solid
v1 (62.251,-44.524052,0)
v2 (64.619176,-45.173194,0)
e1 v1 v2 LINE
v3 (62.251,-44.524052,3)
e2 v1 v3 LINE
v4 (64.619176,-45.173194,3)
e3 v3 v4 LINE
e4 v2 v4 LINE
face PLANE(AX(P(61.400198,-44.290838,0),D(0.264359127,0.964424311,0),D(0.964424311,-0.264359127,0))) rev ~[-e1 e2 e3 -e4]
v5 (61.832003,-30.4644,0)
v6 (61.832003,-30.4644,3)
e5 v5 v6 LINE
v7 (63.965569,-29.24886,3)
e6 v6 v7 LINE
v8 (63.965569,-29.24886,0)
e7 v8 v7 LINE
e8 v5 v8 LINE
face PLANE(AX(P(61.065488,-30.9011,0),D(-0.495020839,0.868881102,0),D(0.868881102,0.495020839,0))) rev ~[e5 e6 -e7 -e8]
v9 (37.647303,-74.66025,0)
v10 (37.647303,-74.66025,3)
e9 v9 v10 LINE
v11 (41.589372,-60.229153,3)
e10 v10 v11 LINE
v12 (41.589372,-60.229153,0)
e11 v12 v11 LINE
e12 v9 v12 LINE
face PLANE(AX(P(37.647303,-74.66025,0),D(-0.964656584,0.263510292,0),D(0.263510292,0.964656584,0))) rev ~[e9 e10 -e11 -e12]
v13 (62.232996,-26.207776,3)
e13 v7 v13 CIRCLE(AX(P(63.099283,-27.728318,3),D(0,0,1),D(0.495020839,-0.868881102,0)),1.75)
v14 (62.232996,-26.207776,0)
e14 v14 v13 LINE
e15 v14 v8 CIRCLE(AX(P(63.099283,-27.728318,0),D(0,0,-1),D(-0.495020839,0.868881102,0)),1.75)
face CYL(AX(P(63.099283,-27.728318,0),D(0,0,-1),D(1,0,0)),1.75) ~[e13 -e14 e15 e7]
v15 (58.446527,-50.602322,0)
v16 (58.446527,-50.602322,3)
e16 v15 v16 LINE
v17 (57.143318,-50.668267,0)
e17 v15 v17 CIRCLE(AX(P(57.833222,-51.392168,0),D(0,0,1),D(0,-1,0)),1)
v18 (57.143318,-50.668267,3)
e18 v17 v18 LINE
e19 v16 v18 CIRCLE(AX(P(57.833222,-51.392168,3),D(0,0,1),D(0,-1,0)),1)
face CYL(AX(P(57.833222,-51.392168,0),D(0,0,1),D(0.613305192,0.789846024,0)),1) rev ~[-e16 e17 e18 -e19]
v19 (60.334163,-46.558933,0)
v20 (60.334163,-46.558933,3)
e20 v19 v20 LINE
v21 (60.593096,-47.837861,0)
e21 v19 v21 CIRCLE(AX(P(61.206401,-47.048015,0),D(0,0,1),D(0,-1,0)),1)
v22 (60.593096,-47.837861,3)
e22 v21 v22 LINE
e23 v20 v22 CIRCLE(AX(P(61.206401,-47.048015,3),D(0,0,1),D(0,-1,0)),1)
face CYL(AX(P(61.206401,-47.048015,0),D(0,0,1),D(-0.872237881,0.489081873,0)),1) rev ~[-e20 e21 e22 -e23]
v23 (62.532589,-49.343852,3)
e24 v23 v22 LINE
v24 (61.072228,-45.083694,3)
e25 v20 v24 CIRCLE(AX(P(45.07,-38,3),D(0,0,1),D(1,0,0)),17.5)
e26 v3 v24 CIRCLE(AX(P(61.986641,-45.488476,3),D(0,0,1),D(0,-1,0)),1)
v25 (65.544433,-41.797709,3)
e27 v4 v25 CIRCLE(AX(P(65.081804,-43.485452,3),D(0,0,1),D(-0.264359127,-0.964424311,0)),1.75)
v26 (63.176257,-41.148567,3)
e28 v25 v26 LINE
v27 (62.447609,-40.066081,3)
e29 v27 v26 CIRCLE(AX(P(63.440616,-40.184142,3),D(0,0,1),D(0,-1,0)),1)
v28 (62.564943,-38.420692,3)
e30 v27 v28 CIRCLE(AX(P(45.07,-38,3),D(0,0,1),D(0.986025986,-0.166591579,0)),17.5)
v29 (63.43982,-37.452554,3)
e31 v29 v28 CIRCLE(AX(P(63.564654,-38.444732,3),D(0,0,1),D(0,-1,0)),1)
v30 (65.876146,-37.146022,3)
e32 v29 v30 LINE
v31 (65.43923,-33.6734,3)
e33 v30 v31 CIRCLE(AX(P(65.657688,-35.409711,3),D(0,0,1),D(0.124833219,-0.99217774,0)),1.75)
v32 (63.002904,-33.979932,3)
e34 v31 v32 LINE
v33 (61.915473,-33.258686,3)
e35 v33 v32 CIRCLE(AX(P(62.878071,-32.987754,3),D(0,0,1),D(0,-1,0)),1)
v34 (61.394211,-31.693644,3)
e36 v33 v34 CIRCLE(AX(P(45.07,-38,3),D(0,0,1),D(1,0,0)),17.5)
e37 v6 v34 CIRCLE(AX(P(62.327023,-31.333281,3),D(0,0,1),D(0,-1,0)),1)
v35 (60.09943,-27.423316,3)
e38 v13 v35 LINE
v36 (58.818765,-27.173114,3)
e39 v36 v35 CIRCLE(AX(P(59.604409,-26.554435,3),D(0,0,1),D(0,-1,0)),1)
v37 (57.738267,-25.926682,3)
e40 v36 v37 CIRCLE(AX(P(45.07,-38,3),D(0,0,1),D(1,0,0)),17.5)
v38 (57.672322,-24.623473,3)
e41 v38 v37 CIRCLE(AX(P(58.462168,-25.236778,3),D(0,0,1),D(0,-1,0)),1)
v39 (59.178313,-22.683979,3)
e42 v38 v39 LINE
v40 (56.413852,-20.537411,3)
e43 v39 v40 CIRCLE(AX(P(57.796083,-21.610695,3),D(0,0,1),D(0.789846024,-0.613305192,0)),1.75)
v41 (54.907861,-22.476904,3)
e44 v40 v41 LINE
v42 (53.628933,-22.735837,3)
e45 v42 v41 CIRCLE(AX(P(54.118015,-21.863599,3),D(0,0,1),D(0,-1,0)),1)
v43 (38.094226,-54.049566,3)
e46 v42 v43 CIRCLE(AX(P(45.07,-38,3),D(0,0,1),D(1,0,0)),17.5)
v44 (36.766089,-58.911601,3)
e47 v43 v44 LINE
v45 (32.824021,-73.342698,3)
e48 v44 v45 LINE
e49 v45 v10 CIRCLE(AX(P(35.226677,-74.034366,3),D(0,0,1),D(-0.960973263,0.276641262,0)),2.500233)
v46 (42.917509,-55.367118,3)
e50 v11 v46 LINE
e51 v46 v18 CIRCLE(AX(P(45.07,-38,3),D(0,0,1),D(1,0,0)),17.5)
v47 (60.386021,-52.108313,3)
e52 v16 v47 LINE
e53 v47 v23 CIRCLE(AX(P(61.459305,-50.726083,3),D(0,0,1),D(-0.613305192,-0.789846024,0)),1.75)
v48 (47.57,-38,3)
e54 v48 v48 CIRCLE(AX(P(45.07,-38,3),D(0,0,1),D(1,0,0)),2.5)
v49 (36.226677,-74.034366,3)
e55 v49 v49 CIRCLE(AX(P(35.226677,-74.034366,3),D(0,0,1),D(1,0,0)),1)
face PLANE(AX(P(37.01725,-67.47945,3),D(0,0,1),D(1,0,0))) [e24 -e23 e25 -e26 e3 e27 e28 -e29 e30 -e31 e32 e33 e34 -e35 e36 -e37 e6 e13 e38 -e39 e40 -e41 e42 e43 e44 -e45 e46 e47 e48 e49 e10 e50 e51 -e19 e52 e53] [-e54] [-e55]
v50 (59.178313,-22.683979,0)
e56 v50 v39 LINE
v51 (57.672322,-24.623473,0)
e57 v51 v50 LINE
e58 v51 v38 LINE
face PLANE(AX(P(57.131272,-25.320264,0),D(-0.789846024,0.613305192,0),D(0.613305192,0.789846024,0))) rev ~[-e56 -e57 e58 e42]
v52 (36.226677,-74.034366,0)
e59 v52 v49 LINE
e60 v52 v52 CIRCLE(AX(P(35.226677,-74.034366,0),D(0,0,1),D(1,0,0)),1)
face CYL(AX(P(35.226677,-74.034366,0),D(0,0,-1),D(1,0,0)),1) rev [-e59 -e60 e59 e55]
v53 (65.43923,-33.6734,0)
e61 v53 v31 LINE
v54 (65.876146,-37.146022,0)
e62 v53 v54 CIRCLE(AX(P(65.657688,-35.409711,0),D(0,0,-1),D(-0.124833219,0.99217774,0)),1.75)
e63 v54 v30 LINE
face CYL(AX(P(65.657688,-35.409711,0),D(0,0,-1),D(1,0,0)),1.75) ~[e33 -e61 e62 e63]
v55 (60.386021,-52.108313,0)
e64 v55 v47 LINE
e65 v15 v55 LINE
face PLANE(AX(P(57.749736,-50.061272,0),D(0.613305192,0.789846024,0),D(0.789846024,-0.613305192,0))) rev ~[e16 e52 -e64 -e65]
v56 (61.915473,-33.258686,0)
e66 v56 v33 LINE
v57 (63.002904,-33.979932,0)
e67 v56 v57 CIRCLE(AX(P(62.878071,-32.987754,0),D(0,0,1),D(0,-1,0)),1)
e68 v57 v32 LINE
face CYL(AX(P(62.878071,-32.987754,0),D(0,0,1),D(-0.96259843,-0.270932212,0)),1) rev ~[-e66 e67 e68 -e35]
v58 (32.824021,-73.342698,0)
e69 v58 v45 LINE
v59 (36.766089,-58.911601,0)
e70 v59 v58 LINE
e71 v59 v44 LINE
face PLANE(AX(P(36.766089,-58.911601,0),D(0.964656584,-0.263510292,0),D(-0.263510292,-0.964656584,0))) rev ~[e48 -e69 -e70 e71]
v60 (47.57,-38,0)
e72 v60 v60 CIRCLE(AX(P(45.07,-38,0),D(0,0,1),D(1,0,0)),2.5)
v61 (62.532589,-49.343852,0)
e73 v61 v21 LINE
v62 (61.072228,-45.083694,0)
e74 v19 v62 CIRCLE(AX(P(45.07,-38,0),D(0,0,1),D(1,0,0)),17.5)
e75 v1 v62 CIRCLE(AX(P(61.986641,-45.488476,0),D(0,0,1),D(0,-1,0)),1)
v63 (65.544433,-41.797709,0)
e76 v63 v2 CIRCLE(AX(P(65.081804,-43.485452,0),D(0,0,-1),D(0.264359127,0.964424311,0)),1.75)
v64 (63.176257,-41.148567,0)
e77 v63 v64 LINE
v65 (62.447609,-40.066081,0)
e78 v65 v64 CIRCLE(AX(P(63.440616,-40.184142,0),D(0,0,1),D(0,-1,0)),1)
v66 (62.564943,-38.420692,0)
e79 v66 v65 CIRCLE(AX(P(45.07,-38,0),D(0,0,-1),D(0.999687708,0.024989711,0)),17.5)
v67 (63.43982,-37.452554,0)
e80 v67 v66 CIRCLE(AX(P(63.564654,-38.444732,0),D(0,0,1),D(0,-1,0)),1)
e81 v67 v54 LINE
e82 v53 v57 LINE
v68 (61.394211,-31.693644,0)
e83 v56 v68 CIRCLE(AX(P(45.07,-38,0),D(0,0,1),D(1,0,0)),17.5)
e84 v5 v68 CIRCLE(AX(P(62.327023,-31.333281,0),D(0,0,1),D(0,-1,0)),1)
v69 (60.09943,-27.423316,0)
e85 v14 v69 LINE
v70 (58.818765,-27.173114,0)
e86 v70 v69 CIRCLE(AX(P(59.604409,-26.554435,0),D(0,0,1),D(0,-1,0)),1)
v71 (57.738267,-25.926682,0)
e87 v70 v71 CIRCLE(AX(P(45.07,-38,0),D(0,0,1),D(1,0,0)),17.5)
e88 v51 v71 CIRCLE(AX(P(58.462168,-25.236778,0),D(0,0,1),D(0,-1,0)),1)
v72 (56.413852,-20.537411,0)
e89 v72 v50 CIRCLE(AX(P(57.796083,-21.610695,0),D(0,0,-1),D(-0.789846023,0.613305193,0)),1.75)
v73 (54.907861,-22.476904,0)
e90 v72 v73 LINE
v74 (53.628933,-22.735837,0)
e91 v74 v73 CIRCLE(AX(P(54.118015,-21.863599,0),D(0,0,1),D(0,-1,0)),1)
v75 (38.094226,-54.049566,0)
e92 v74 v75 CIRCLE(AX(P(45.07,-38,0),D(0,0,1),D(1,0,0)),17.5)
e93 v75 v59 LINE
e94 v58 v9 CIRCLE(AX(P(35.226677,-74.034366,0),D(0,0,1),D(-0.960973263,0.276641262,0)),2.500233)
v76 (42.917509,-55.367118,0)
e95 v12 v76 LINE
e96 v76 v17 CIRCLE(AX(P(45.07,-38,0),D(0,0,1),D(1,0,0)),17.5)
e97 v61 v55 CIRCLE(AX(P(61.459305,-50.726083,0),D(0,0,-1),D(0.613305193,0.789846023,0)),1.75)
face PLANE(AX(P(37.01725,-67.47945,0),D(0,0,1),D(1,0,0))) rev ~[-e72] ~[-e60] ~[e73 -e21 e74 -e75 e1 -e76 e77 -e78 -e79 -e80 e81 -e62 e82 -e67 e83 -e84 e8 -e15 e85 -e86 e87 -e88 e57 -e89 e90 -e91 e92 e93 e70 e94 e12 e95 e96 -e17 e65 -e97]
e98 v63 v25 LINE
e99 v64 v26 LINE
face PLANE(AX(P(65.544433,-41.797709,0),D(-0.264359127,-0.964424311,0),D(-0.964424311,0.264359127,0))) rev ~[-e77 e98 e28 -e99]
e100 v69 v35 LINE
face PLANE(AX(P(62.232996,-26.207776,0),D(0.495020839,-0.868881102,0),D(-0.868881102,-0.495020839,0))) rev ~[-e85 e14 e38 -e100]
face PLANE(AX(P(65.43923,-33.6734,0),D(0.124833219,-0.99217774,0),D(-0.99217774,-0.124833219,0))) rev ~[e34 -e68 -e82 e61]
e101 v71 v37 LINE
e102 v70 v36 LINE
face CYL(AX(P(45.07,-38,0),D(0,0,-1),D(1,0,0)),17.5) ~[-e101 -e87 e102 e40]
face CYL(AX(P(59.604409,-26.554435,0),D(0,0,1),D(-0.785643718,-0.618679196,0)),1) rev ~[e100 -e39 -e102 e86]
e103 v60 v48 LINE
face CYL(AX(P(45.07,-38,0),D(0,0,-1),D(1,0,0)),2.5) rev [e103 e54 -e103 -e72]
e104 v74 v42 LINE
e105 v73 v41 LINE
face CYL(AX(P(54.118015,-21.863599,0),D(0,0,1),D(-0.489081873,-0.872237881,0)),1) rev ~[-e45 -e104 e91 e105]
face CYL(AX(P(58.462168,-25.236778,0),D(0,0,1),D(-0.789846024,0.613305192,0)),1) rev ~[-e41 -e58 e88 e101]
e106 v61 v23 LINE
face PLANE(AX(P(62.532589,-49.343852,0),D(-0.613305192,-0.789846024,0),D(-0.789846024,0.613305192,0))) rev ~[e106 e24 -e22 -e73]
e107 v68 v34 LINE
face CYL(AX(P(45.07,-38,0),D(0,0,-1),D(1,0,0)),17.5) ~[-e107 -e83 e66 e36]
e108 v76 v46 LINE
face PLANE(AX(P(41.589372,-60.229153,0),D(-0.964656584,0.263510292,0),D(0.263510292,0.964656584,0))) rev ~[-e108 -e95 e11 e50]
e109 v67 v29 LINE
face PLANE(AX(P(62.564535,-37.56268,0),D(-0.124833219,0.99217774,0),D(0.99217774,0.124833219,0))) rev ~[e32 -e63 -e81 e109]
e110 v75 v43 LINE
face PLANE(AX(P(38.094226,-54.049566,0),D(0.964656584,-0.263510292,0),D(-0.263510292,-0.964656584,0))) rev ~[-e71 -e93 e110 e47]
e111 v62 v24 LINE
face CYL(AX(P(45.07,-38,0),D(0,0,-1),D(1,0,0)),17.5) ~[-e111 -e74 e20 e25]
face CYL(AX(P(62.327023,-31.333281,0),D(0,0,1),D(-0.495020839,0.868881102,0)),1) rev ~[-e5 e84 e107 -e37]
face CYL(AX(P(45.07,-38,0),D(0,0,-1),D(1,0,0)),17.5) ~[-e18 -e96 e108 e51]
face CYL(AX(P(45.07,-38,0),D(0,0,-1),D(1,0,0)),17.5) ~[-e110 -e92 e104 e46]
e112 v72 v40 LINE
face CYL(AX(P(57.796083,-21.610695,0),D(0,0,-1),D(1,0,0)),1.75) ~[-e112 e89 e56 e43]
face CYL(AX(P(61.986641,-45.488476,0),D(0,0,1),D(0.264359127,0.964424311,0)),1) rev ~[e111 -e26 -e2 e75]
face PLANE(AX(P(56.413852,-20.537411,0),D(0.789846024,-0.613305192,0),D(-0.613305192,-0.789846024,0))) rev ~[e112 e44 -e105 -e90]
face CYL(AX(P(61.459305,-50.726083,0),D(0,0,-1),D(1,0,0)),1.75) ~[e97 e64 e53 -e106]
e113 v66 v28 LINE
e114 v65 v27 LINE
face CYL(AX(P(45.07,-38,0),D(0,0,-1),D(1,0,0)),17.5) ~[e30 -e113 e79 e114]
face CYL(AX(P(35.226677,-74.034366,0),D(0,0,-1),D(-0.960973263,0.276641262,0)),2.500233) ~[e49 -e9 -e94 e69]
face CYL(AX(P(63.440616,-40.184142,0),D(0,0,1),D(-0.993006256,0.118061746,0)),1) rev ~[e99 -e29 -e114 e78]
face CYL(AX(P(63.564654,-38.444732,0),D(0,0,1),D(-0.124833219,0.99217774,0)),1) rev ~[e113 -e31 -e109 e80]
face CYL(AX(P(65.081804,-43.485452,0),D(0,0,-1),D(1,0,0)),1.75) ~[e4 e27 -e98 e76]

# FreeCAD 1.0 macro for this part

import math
import FreeCAD as App
import Part
import Sketcher
Q = App.Units.Quantity


def edges_at(feature, points):
    """Names of the edges that pass closest to the given points."""
    edges = feature.Shape.Edges
    near = lambda p: min(range(len(edges)), key=lambda i: edges[i].distToShape(Part.Vertex(*p))[0])
    return sorted({f"Edge{near(p) + 1}" for p in points})

doc = App.newDocument("Part")
body = doc.addObject("PartDesign::Body", "Body")

sketch1 = doc.addObject("Sketcher::SketchObject", "Sketch")
body.addObject(sketch1)
sketch1.AttachmentSupport = (doc.XY_Plane, [""])
sketch1.MapMode = "FlatFace"
sketch1.addGeometry(Part.LineSegment(App.Vector(62.564535, -37.56268, 0), App.Vector(65.876146, -37.146022, 0)), False)
sketch1.addGeometry(Part.ArcOfCircle(Part.Circle(App.Vector(65.657688, -35.409711, 0), App.Vector(0, 0, 1), 1.75), math.radians(-82.828875), math.radians(97.171124)), False)
sketch1.addGeometry(Part.LineSegment(App.Vector(65.43923, -33.6734, 0), App.Vector(62.127619, -34.090058, 0)), False)
sketch1.addGeometry(Part.ArcOfCircle(Part.Circle(App.Vector(45.07, -38, 0), App.Vector(0, 0, 1), 17.5), math.radians(12.910295), math.radians(23.931954)), False)
sketch1.addGeometry(Part.LineSegment(App.Vector(61.065488, -30.9011, 0), App.Vector(63.965569, -29.24886, 0)), False)
sketch1.addGeometry(Part.ArcOfCircle(Part.Circle(App.Vector(63.099283, -27.728318, 0), App.Vector(0, 0, 1), 1.75), math.radians(-60.328876), math.radians(119.671125)), False)
sketch1.addGeometry(Part.LineSegment(App.Vector(62.232996, -26.207776, 0), App.Vector(59.332915, -27.860017, 0)), False)
sketch1.addGeometry(Part.ArcOfCircle(Part.Circle(App.Vector(45.07, -38, 0), App.Vector(0, 0, 1), 17.5), math.radians(35.410295), math.radians(46.431954)), False)
sketch1.addGeometry(Part.LineSegment(App.Vector(57.131272, -25.320264, 0), App.Vector(59.178313, -22.683979, 0)), False)
sketch1.addGeometry(Part.ArcOfCircle(Part.Circle(App.Vector(57.796083, -21.610695, 0), App.Vector(0, 0, 1), 1.75), math.radians(-37.828875), math.radians(142.171124)), False)
sketch1.addGeometry(Part.LineSegment(App.Vector(56.413852, -20.537411, 0), App.Vector(54.366811, -23.173696, 0)), False)
sketch1.addGeometry(Part.ArcOfCircle(Part.Circle(App.Vector(45.07, -38, 0), App.Vector(0, 0, 1), 17.5), math.radians(57.910295), math.radians(246.508336)), False)
sketch1.addGeometry(Part.LineSegment(App.Vector(38.094226, -54.049566, 0), App.Vector(36.766089, -58.911601, 0)), False)
sketch1.addGeometry(Part.LineSegment(App.Vector(36.766089, -58.911601, 0), App.Vector(32.824021, -73.342698, 0)), False)
sketch1.addGeometry(Part.ArcOfCircle(Part.Circle(App.Vector(35.226677, -74.034366, 0), App.Vector(0, 0, 1), 2.500233), math.radians(163.940153), math.radians(345.502941)), False)
sketch1.addGeometry(Part.LineSegment(App.Vector(37.647303, -74.66025, 0), App.Vector(41.589372, -60.229153, 0)), False)
sketch1.addGeometry(Part.LineSegment(App.Vector(41.589372, -60.229153, 0), App.Vector(42.917509, -55.367118, 0)), False)
sketch1.addGeometry(Part.ArcOfCircle(Part.Circle(App.Vector(45.07, -38, 0), App.Vector(0, 0, 1), 17.5), math.radians(-97.065242), math.radians(-43.568046)), False)
sketch1.addGeometry(Part.LineSegment(App.Vector(57.749736, -50.061272, 0), App.Vector(60.386021, -52.108313, 0)), False)
sketch1.addGeometry(Part.ArcOfCircle(Part.Circle(App.Vector(61.459305, -50.726083, 0), App.Vector(0, 0, 1), 1.75), math.radians(-127.828875), math.radians(52.171124)), False)
sketch1.addGeometry(Part.LineSegment(App.Vector(62.532589, -49.343852, 0), App.Vector(59.896304, -47.296811, 0)), False)
sketch1.addGeometry(Part.ArcOfCircle(Part.Circle(App.Vector(45.07, -38, 0), App.Vector(0, 0, 1), 17.5), math.radians(-32.089705), math.radians(-21.068046)), False)
sketch1.addGeometry(Part.LineSegment(App.Vector(61.400198, -44.290838, 0), App.Vector(64.619176, -45.173194, 0)), False)
sketch1.addGeometry(Part.ArcOfCircle(Part.Circle(App.Vector(65.081804, -43.485452, 0), App.Vector(0, 0, 1), 1.75), math.radians(-105.328875), math.radians(74.671125)), False)
sketch1.addGeometry(Part.LineSegment(App.Vector(65.544433, -41.797709, 0), App.Vector(62.325455, -40.915353, 0)), False)
sketch1.addGeometry(Part.ArcOfCircle(Part.Circle(App.Vector(45.07, -38, 0), App.Vector(0, 0, 1), 17.5), math.radians(-9.589705), math.radians(1.431954)), False)
sketch1.addGeometry(Part.Circle(App.Vector(45.07, -38, 0), App.Vector(0, 0, 1), 2.5), False)
sketch1.addGeometry(Part.Circle(App.Vector(35.226677, -74.034366, 0), App.Vector(0, 0, 1), 1), False)
sketch1.addConstraint(Sketcher.Constraint("Tangent", 0, 2, 1, 1))
sketch1.addConstraint(Sketcher.Constraint("Tangent", 1, 2, 2, 1))
sketch1.addConstraint(Sketcher.Constraint("Coincident", 2, 2, 3, 1))
sketch1.addConstraint(Sketcher.Constraint("Coincident", 3, 2, 4, 1))
sketch1.addConstraint(Sketcher.Constraint("Tangent", 4, 2, 5, 1))
sketch1.addConstraint(Sketcher.Constraint("Tangent", 5, 2, 6, 1))
sketch1.addConstraint(Sketcher.Constraint("Coincident", 6, 2, 7, 1))
sketch1.addConstraint(Sketcher.Constraint("Coincident", 7, 2, 8, 1))
sketch1.addConstraint(Sketcher.Constraint("Tangent", 8, 2, 9, 1))
sketch1.addConstraint(Sketcher.Constraint("Tangent", 9, 2, 10, 1))
sketch1.addConstraint(Sketcher.Constraint("Coincident", 10, 2, 11, 1))
sketch1.addConstraint(Sketcher.Constraint("Coincident", 11, 2, 12, 1))
sketch1.addConstraint(Sketcher.Constraint("Coincident", 12, 2, 13, 1))
sketch1.addConstraint(Sketcher.Constraint("Coincident", 13, 2, 14, 1))
sketch1.addConstraint(Sketcher.Constraint("Coincident", 14, 2, 15, 1))
sketch1.addConstraint(Sketcher.Constraint("Coincident", 15, 2, 16, 1))
sketch1.addConstraint(Sketcher.Constraint("Coincident", 16, 2, 17, 1))
sketch1.addConstraint(Sketcher.Constraint("Coincident", 17, 2, 18, 1))
sketch1.addConstraint(Sketcher.Constraint("Tangent", 18, 2, 19, 1))
sketch1.addConstraint(Sketcher.Constraint("Tangent", 19, 2, 20, 1))
sketch1.addConstraint(Sketcher.Constraint("Coincident", 20, 2, 21, 1))
sketch1.addConstraint(Sketcher.Constraint("Coincident", 21, 2, 22, 1))
sketch1.addConstraint(Sketcher.Constraint("Tangent", 22, 2, 23, 1))
sketch1.addConstraint(Sketcher.Constraint("Tangent", 23, 2, 24, 1))
sketch1.addConstraint(Sketcher.Constraint("Coincident", 24, 2, 25, 1))
sketch1.addConstraint(Sketcher.Constraint("Coincident", 25, 2, 0, 1))
sketch1.addConstraint(Sketcher.Constraint("Coincident", 7, 3, 3, 3))
sketch1.addConstraint(Sketcher.Constraint("Coincident", 11, 3, 3, 3))
sketch1.addConstraint(Sketcher.Constraint("Coincident", 17, 3, 3, 3))
sketch1.addConstraint(Sketcher.Constraint("Coincident", 21, 3, 3, 3))
sketch1.addConstraint(Sketcher.Constraint("Coincident", 25, 3, 3, 3))
sketch1.addConstraint(Sketcher.Constraint("Coincident", 26, 3, 3, 3))
sketch1.addConstraint(Sketcher.Constraint("Coincident", 27, 3, 14, 3))
sketch1.addConstraint(Sketcher.Constraint("Equal", 1, 5))
sketch1.addConstraint(Sketcher.Constraint("Equal", 3, 7))
sketch1.addConstraint(Sketcher.Constraint("Equal", 5, 9))
sketch1.addConstraint(Sketcher.Constraint("Equal", 7, 11))
sketch1.addConstraint(Sketcher.Constraint("Equal", 11, 17))
sketch1.addConstraint(Sketcher.Constraint("Equal", 9, 19))
sketch1.addConstraint(Sketcher.Constraint("Equal", 17, 21))
sketch1.addConstraint(Sketcher.Constraint("Equal", 19, 23))
sketch1.addConstraint(Sketcher.Constraint("Equal", 21, 25))
sketch1.addConstraint(Sketcher.Constraint("Parallel", 0, 2))
sketch1.addConstraint(Sketcher.Constraint("Parallel", 4, 6))
sketch1.addConstraint(Sketcher.Constraint("Parallel", 8, 10))
sketch1.addConstraint(Sketcher.Constraint("Parallel", 12, 13))
sketch1.addConstraint(Sketcher.Constraint("Parallel", 13, 15))
sketch1.addConstraint(Sketcher.Constraint("Parallel", 15, 16))
sketch1.addConstraint(Sketcher.Constraint("Perpendicular", 10, 18))
sketch1.addConstraint(Sketcher.Constraint("Parallel", 18, 20))
sketch1.addConstraint(Sketcher.Constraint("Parallel", 22, 24))
sketch1.addConstraint(Sketcher.Constraint("Equal", 0, 2))
sketch1.addConstraint(Sketcher.Constraint("Equal", 2, 4))
sketch1.addConstraint(Sketcher.Constraint("Equal", 4, 6))
sketch1.addConstraint(Sketcher.Constraint("Equal", 6, 8))
sketch1.addConstraint(Sketcher.Constraint("Equal", 8, 10))
sketch1.addConstraint(Sketcher.Constraint("Equal", 13, 15))
sketch1.addConstraint(Sketcher.Constraint("Equal", 12, 16))
sketch1.addConstraint(Sketcher.Constraint("Equal", 10, 18))
sketch1.addConstraint(Sketcher.Constraint("Equal", 18, 20))
sketch1.addConstraint(Sketcher.Constraint("Equal", 20, 22))
sketch1.addConstraint(Sketcher.Constraint("Equal", 22, 24))
sketch1.addConstraint(Sketcher.Constraint("Diameter", 26, Q("5 mm")))
sketch1.addConstraint(Sketcher.Constraint("Diameter", 27, Q("2 mm")))
sketch1.addConstraint(Sketcher.Constraint("Radius", 3, Q("17.5 mm")))
sketch1.addConstraint(Sketcher.Constraint("Radius", 1, Q("1.75 mm")))
sketch1.addConstraint(Sketcher.Constraint("DistanceY", 3, 3, -1, 1, Q("38 mm")))
sketch1.addConstraint(Sketcher.Constraint("DistanceX", -1, 1, 3, 3, Q("45.07 mm")))
sketch1.addConstraint(Sketcher.Constraint("Radius", 14, Q("2.500233 mm")))
sketch1.addConstraint(Sketcher.Constraint("DistanceY", 10, 2, 9, 3, Q("1.563001 mm")))
sketch1.addConstraint(Sketcher.Constraint("DistanceY", 23, 2, 1, 3, Q("6.387999 mm")))
sketch1.addConstraint(Sketcher.Constraint("DistanceY", 1, 2, -1, 1, Q("33.6734 mm")))
sketch1.addConstraint(Sketcher.Constraint("DistanceY", 3, 2, -1, 1, Q("30.9011 mm")))
sketch1.addConstraint(Sketcher.Constraint("DistanceY", 12, 2, -1, 1, Q("58.911601 mm")))
sketch1.addConstraint(Sketcher.Constraint("DistanceY", 13, 2, -1, 1, Q("73.342698 mm")))
sketch1.addConstraint(Sketcher.Constraint("DistanceX", 9, 3, 5, 3, Q("5.3032 mm")))
sketch1.addConstraint(Sketcher.Constraint("Distance", 12, Q("5.040172 mm")))
sketch1.addConstraint(Sketcher.Constraint("Distance", 13, Q("14.959828 mm")))
sketch1.addConstraint(Sketcher.Constraint("DistanceX", -1, 1, 16, 2, Q("42.917509 mm")))
pad1 = doc.addObject("PartDesign::Pad", "Pad")
body.addObject(pad1)
pad1.Profile = sketch1
pad1.Length = 3
doc.recompute()

fillet = doc.addObject("PartDesign::Fillet", "Fillet")
body.addObject(fillet)
fillet.Base = (pad1, edges_at(pad1, [
    (62.325, -40.915, 1.5),
    (61.4, -44.291, 1.5),
    (59.896, -47.297, 1.5),
    (57.75, -50.061, 1.5),
    (54.367, -23.174, 1.5),
    (57.131, -25.32, 1.5),
    (59.333, -27.86, 1.5),
    (61.065, -30.901, 1.5),
    (62.128, -34.09, 1.5),
    (62.565, -37.563, 1.5),
]))
fillet.Radius = 1

doc.recompute()
